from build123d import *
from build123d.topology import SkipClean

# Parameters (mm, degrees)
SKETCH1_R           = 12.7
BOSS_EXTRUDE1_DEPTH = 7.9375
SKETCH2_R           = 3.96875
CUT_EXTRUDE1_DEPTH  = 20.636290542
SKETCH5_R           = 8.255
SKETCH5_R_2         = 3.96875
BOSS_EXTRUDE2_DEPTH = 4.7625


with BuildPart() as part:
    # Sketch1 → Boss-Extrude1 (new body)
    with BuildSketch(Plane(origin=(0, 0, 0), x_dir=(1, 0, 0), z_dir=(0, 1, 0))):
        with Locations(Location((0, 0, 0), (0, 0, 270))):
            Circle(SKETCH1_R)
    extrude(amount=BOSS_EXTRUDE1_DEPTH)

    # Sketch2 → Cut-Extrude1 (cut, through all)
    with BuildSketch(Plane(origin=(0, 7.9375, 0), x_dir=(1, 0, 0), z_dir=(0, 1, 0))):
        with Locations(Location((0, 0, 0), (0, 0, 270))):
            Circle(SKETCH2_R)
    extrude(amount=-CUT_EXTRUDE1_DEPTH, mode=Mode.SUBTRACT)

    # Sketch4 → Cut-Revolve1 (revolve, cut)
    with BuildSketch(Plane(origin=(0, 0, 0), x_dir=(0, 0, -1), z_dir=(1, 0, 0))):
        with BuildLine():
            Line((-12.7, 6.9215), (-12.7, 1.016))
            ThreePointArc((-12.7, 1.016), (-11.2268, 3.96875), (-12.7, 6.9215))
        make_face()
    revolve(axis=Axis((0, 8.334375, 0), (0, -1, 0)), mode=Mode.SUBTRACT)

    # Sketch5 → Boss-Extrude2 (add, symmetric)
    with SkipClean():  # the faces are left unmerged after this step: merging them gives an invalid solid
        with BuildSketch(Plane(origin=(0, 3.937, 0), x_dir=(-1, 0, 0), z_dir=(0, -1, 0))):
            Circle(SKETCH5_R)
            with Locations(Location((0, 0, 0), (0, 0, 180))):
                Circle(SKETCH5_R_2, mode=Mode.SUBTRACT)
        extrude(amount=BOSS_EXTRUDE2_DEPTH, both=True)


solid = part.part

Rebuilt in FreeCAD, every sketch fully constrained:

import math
import FreeCAD as App
import Part
import Sketcher
Q = App.Units.Quantity

doc = App.newDocument("Part")
body = doc.addObject("PartDesign::Body", "Body")

sketch1 = body.newObject("Sketcher::SketchObject", "Sketch")
sketch1.AttachmentSupport = (doc.getObject("XZ_Plane"), [""])
sketch1.MapMode = "FlatFace"
sketch1.addGeometry(Part.Circle(App.Vector(0, 0, 0), App.Vector(0, 0, 1), 12.7), False)
sketch1.addConstraint(Sketcher.Constraint("Coincident", 0, 3, -1, 1))
sketch1.addConstraint(Sketcher.Constraint("Diameter", 0, Q("1 in")))
pad1 = body.newObject("PartDesign::Pad", "Pad")
pad1.Profile = sketch1
pad1.Length = Q("0.3125 in")
pad1.Reversed = True

sketch2 = body.newObject("Sketcher::SketchObject", "Sketch001")
sketch2.AttachmentSupport = (doc.getObject("XZ_Plane"), [""])
sketch2.MapMode = "FlatFace"
sketch2.AttachmentOffset = App.Placement(App.Vector(0, 0, -0.3125 * 25.4), App.Rotation())
sketch2.addGeometry(Part.Circle(App.Vector(0, 0, 0), App.Vector(0, 0, 1), 3.96875), False)
sketch2.addConstraint(Sketcher.Constraint("Coincident", 0, 3, -1, 1))
sketch2.addConstraint(Sketcher.Constraint("Diameter", 0, Q("0.3125 in")))
pocket1 = body.newObject("PartDesign::Pocket", "Pocket")
pocket1.Profile = sketch2
pocket1.Type = "ThroughAll"
pocket1.Reversed = True

sketch3 = body.newObject("Sketcher::SketchObject", "Sketch002")
sketch3.AttachmentSupport = (doc.getObject("YZ_Plane"), [""])
sketch3.MapMode = "FlatFace"
sketch3.addGeometry(Part.LineSegment(App.Vector(6.9215, 12.7, 0), App.Vector(1.016, 12.7, 0)), False)
sketch3.addGeometry(Part.ArcOfCircle(Part.Circle(App.Vector(3.96875, 14.922514, 0), App.Vector(0, 0, 1), 3.695714), math.radians(-143.031487), math.radians(-36.968513)), False)
sketch3.addConstraint(Sketcher.Constraint("Coincident", 0, 1, 1, 2))
sketch3.addConstraint(Sketcher.Constraint("Coincident", 1, 1, 0, 2))
sketch3.addConstraint(Sketcher.Constraint("Horizontal", 0))
sketch3.addConstraint(Sketcher.Constraint("DistanceY", -1, 1, 0, 1, Q("0.5 in")))
sketch3.addConstraint(Sketcher.Constraint("DistanceX", -1, 1, 1, 1, Q("0.04 in")))
sketch3.addConstraint(Sketcher.Constraint("DistanceX", 0, 2, 0, 1, Q("0.2325 in")))
sketch3.addConstraint(Sketcher.Constraint("Radius", 1, Q("3.695714 mm")))
groove = body.newObject("PartDesign::Groove", "Groove")
groove.Profile = sketch3
groove.ReferenceAxis = (sketch3, ["H_Axis"])
groove.Angle = 360

sketch4 = body.newObject("Sketcher::SketchObject", "Sketch003")
sketch4.AttachmentSupport = (doc.getObject("XZ_Plane"), [""])
sketch4.MapMode = "FlatFace"
sketch4.AttachmentOffset = App.Placement(App.Vector(0, 0, -0.155 * 25.4), App.Rotation())
sketch4.addGeometry(Part.Circle(App.Vector(0, 0, 0), App.Vector(0, 0, 1), 8.255), False)
sketch4.addGeometry(Part.Circle(App.Vector(0, 0, 0), App.Vector(0, 0, 1), 3.96875), False)
sketch4.addConstraint(Sketcher.Constraint("Coincident", 0, 3, -1, 1))
sketch4.addConstraint(Sketcher.Constraint("Coincident", 1, 3, -1, 1))
sketch4.addConstraint(Sketcher.Constraint("Diameter", 0, Q("0.65 in")))
sketch4.addConstraint(Sketcher.Constraint("Diameter", 1, Q("0.3125 in")))
pad2 = body.newObject("PartDesign::Pad", "Pad001")
pad2.Profile = sketch4
pad2.Length = Q("0.375 in")
pad2.Midplane = True

doc.recompute()
